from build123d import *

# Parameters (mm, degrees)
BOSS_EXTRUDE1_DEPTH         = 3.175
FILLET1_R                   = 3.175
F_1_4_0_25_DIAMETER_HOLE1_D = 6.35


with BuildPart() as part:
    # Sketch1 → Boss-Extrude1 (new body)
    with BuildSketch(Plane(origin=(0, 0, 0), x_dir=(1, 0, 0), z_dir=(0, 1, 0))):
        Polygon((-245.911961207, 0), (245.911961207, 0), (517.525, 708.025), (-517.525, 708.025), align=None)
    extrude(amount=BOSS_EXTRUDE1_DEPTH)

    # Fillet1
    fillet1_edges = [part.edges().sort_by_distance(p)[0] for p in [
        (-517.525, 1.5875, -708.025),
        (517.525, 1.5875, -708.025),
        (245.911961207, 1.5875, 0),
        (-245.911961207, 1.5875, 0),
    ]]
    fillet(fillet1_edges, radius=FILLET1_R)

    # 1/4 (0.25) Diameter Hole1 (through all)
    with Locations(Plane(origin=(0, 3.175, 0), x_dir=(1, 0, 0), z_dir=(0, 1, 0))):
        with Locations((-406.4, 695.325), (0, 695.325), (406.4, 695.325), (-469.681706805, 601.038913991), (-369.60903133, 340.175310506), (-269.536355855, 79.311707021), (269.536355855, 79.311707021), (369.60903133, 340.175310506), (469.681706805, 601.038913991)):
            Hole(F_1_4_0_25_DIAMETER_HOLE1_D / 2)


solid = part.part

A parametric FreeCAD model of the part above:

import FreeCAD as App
import Part
import Sketcher

V = App.Vector
Q = App.Units.Quantity


def edges_at(feature, points):
    """Names of the edges that pass closest to the given points."""
    edges = feature.Shape.Edges
    near = lambda p: min(range(len(edges)), key=lambda i: edges[i].distToShape(Part.Vertex(*p))[0])
    return sorted({f"Edge{near(p) + 1}" for p in points})

doc = App.newDocument("Part")
body = doc.addObject("PartDesign::Body", "Body")

sketch1 = doc.addObject("Sketcher::SketchObject", "Sketch")
body.addObject(sketch1)
sketch1.AttachmentSupport = (doc.XZ_Plane, [""])
sketch1.MapMode = "FlatFace"
sketch1.addGeometry([
    Part.LineSegment(V(-246, 0, 0), V(246, 0, 0)),
    Part.LineSegment(V(246, 0, 0), V(518, -708, 0)),
    Part.LineSegment(V(518, -708, 0), V(-518, -708, 0)),
    Part.LineSegment(V(-518, -708, 0), V(-246, 0, 0)),
], False)
sketch1.addConstraint([
    Sketcher.Constraint("Coincident", 0, 2, 1, 1),
    Sketcher.Constraint("Coincident", 1, 2, 2, 1),
    Sketcher.Constraint("Coincident", 2, 2, 3, 1),
    Sketcher.Constraint("Coincident", 3, 2, 0, 1),
    Sketcher.Constraint("Horizontal", 0),
    Sketcher.Constraint("Horizontal", 2),
    Sketcher.Constraint("Symmetric", 0, 2, 3, 2, -1, 1),
    Sketcher.Constraint("Equal", 1, 3),
    Sketcher.Constraint("DistanceX", 2, 2, 2, 1, Q("40.75 in")),
    Sketcher.Constraint("DistanceY", 1, 2, -1, 1, Q("27.875 in")),
    Sketcher.Constraint("DistanceX", 0, 1, 0, 2, Q("491.823922 mm")),
])
pad1 = doc.addObject("PartDesign::Pad", "Pad")
body.addObject(pad1)
pad1.Profile = sketch1
pad1.Length = Q("0.125 in")
pad1.Reversed = True
doc.recompute()

fillet = doc.addObject("PartDesign::Fillet", "Fillet")
body.addObject(fillet)
fillet.Base = (pad1, edges_at(pad1, [
    (-517.525, 1.587, -708.025),
    (517.525, 1.587, -708.025),
    (245.912, 1.587, 0),
    (-245.912, 1.587, 0),
]))
fillet.Radius = Q("0.125 in")

sketch2 = doc.addObject("Sketcher::SketchObject", "Sketch001")
body.addObject(sketch2)
sketch2.AttachmentSupport = (doc.XZ_Plane, [""])
sketch2.MapMode = "FlatFace"
sketch2.AttachmentOffset = App.Placement(V(0, 0, -0.125 * 25.4), App.Rotation())
sketch2.addGeometry([
    Part.Circle(V(-406.4, -695.3, 0), V(0, 0, 1), 3.2),
    Part.Circle(V(0, -695.3, 0), V(0, 0, 1), 3.2),
    Part.Circle(V(406.4, -695.3, 0), V(0, 0, 1), 3.2),
    Part.Circle(V(-469.7, -601, 0), V(0, 0, 1), 3.2),
    Part.Circle(V(-369.6, -340.2, 0), V(0, 0, 1), 3.2),
    Part.Circle(V(-269.5, -79.3, 0), V(0, 0, 1), 3.2),
    Part.Circle(V(269.5, -79.3, 0), V(0, 0, 1), 3.2),
    Part.Circle(V(369.6, -340.2, 0), V(0, 0, 1), 3.2),
    Part.Circle(V(469.7, -601, 0), V(0, 0, 1), 3.2),
], False)
sketch2.addConstraint([
    Sketcher.Constraint("Equal", 0, 1),
    Sketcher.Constraint("Equal", 1, 2),
    Sketcher.Constraint("Equal", 2, 3),
    Sketcher.Constraint("Equal", 3, 4),
    Sketcher.Constraint("Equal", 4, 5),
    Sketcher.Constraint("Equal", 5, 6),
    Sketcher.Constraint("Equal", 6, 7),
    Sketcher.Constraint("Equal", 7, 8),
    Sketcher.Constraint("Symmetric", 0, 3, 2, 3, -2),
    Sketcher.Constraint("Symmetric", 5, 3, 6, 3, -2),
    Sketcher.Constraint("Symmetric", 4, 3, 7, 3, -2),
    Sketcher.Constraint("Symmetric", 3, 3, 8, 3, -2),
    Sketcher.Constraint("PointOnObject", 1, 3, -2),
    Sketcher.Constraint("Horizontal", 0, 3, 1, 3),
    Sketcher.Constraint("Diameter", 0, Q("0.25 in")),
    Sketcher.Constraint("DistanceX", 0, 3, -1, 1, Q("16 in")),
    Sketcher.Constraint("DistanceY", 0, 3, -1, 1, Q("27.375 in")),
    Sketcher.Constraint("DistanceX", 4, 3, -1, 1, Q("369.609031 mm")),
    Sketcher.Constraint("DistanceY", 4, 3, -1, 1, Q("340.175311 mm")),
    Sketcher.Constraint("DistanceX", 3, 3, 5, 3, Q("200.145351 mm")),
    Sketcher.Constraint("DistanceX", 5, 3, 6, 3, Q("539.072712 mm")),
    Sketcher.Constraint("DistanceY", 3, 3, -1, 1, Q("601.038914 mm")),
    Sketcher.Constraint("DistanceY", 5, 3, -1, 1, Q("79.311707 mm")),
])
doc.recompute()
hole = doc.addObject("PartDesign::Hole", "Hole")
body.addObject(hole)
hole.Profile = sketch2
hole.ThreadType = "None"
hole.Diameter = Q("0.25 in")
hole.DepthType = "ThroughAll"
hole.Reversed = True

doc.recompute()
